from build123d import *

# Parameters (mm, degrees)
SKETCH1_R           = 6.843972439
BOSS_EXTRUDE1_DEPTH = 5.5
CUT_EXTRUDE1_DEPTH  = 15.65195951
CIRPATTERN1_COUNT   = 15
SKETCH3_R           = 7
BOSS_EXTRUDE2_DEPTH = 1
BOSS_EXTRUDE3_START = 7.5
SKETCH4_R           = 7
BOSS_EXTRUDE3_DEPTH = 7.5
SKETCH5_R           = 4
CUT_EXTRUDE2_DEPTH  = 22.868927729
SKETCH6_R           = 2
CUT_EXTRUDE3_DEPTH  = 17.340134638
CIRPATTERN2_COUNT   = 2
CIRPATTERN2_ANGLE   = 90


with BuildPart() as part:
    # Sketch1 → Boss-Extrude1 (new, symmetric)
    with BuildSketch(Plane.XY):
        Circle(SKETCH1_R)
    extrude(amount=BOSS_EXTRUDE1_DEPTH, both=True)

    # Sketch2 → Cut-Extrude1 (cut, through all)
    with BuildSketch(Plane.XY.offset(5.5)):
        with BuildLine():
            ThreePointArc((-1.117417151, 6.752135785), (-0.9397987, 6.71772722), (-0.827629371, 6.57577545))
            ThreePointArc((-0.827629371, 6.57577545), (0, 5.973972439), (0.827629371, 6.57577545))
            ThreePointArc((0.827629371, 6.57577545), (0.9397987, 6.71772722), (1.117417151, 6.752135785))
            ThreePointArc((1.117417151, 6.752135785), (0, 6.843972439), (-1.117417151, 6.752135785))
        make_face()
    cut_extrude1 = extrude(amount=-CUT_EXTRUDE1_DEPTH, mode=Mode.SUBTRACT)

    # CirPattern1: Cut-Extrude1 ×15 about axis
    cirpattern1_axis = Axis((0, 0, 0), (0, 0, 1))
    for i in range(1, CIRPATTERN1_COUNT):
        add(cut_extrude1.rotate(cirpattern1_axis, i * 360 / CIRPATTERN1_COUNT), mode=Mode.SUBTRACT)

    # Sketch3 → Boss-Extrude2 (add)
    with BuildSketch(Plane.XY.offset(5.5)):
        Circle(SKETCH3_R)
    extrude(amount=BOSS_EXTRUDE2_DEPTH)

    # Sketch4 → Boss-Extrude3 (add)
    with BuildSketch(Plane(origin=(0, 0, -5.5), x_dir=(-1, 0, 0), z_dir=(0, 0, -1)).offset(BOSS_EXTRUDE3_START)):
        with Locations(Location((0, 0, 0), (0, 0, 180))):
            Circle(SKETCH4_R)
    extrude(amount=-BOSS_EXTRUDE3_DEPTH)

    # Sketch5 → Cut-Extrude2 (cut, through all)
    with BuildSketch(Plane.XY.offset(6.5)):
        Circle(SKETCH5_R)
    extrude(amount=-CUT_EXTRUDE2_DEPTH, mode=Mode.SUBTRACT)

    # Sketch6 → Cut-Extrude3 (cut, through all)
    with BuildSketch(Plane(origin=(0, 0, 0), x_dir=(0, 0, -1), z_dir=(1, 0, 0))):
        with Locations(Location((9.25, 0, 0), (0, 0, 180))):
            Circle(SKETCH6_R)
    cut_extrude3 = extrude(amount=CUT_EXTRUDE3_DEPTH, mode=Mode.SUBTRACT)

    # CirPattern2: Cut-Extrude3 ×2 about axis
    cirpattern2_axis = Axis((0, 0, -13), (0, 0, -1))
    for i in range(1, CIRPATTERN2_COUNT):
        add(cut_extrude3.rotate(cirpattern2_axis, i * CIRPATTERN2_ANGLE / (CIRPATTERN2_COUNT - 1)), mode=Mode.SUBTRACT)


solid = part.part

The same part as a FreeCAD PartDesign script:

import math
import FreeCAD as App
import Part
import Sketcher
from FreeCAD import Vector
Q = App.Units.Quantity

doc = App.newDocument("Part")
body = doc.addObject("PartDesign::Body", "Body")

sketch1 = doc.addObject("Sketcher::SketchObject", "Sketch")
body.addObject(sketch1)
sketch1.AttachmentSupport = (doc.XY_Plane, [""])
sketch1.MapMode = "FlatFace"
sketch1.addGeometry(Part.Circle(Vector(0, 0, 0), Vector(0, 0, 1), 6.843972), False)
sketch1.addConstraint([
    Sketcher.Constraint("Coincident", 0, 3, -1, 1),
    Sketcher.Constraint("Diameter", 0, Q("13.687945 mm")),
])
pad1 = doc.addObject("PartDesign::Pad", "Pad")
body.addObject(pad1)
pad1.Profile = sketch1
pad1.Length = 11
pad1.Midplane = True

sketch2 = doc.addObject("Sketcher::SketchObject", "Sketch001")
body.addObject(sketch2)
sketch2.AttachmentSupport = (doc.XY_Plane, [""])
sketch2.MapMode = "FlatFace"
sketch2.AttachmentOffset = App.Placement(Vector(0, 0, 5.5), App.Rotation())
sketch2.addGeometry([
    Part.ArcOfCircle(Part.Circle(Vector(-1.074967, 6.495625, 0), Vector(0, 0, 1), 0.26), math.radians(17.955148), math.radians(99.396765)),
    Part.ArcOfCircle(Part.Circle(Vector(0, 6.843972, 0), Vector(0, 0, 1), 0.87), math.radians(-162.044852), math.radians(-17.955148)),
    Part.ArcOfCircle(Part.Circle(Vector(1.074967, 6.495625, 0), Vector(0, 0, 1), 0.26), math.radians(80.603235), math.radians(162.044852)),
    Part.ArcOfCircle(Part.Circle(Vector(0, 0, 0), Vector(0, 0, 1), 6.843972), math.radians(80.603235), math.radians(99.396765)),
], False)
sketch2.addConstraint([
    Sketcher.Constraint("Tangent", 0, 1, 1, 1),
    Sketcher.Constraint("Tangent", 1, 2, 2, 2),
    Sketcher.Constraint("Tangent", 2, 1, 3, 1),
    Sketcher.Constraint("Tangent", 3, 2, 0, 2),
    Sketcher.Constraint("Coincident", 3, 3, -1, 1),
    Sketcher.Constraint("Equal", 0, 2),
    Sketcher.Constraint("PointOnObject", 1, 3, -2),
    Sketcher.Constraint("Radius", 0, Q("0.26 mm")),
    Sketcher.Constraint("Radius", 1, Q("0.87 mm")),
    Sketcher.Constraint("Radius", 3, Q("6.843972 mm")),
    Sketcher.Constraint("DistanceX", 0, 1, -1, 1, Q("0.827629 mm")),
])
pocket1 = doc.addObject("PartDesign::Pocket", "Pocket")
body.addObject(pocket1)
pocket1.Profile = sketch2
pocket1.Type = "ThroughAll"
doc.recompute()

polarpattern = doc.addObject("PartDesign::PolarPattern", "PolarPattern")
body.addObject(polarpattern)
polarpattern.Originals = [pocket1]
polarpattern.Axis = (doc.Z_Axis, [""])
polarpattern.Angle = 360
polarpattern.Occurrences = 15
body.Tip = polarpattern

sketch3 = doc.addObject("Sketcher::SketchObject", "Sketch002")
body.addObject(sketch3)
sketch3.AttachmentSupport = (doc.XY_Plane, [""])
sketch3.MapMode = "FlatFace"
sketch3.AttachmentOffset = App.Placement(Vector(0, 0, 5.5), App.Rotation())
sketch3.addGeometry(Part.Circle(Vector(0, 0, 0), Vector(0, 0, 1), 7), False)
sketch3.addConstraint([
    Sketcher.Constraint("Coincident", 0, 3, -1, 1),
    Sketcher.Constraint("Diameter", 0, Q("14 mm")),
])
pad2 = doc.addObject("PartDesign::Pad", "Pad001")
body.addObject(pad2)
pad2.Profile = sketch3
pad2.Length = 1

sketch4 = doc.addObject("Sketcher::SketchObject", "Sketch003")
body.addObject(sketch4)
sketch4.AttachmentSupport = (doc.XY_Plane, [""])
sketch4.MapMode = "FlatFace"
sketch4.AttachmentOffset = App.Placement(Vector(0, 0, -13), App.Rotation())
sketch4.addGeometry(Part.Circle(Vector(0, 0, 0), Vector(0, 0, 1), 7), False)
sketch4.addConstraint([
    Sketcher.Constraint("Coincident", 0, 3, -1, 1),
    Sketcher.Constraint("Diameter", 0, Q("14 mm")),
])
pad3 = doc.addObject("PartDesign::Pad", "Pad002")
body.addObject(pad3)
pad3.Profile = sketch4
pad3.Length = 7.5

sketch5 = doc.addObject("Sketcher::SketchObject", "Sketch004")
body.addObject(sketch5)
sketch5.AttachmentSupport = (doc.XY_Plane, [""])
sketch5.MapMode = "FlatFace"
sketch5.AttachmentOffset = App.Placement(Vector(0, 0, 6.5), App.Rotation())
sketch5.addGeometry(Part.Circle(Vector(0, 0, 0), Vector(0, 0, 1), 4), False)
sketch5.addConstraint([
    Sketcher.Constraint("Coincident", 0, 3, -1, 1),
    Sketcher.Constraint("Diameter", 0, Q("8 mm")),
])
pocket2 = doc.addObject("PartDesign::Pocket", "Pocket001")
body.addObject(pocket2)
pocket2.Profile = sketch5
pocket2.Type = "ThroughAll"

sketch6 = doc.addObject("Sketcher::SketchObject", "Sketch005")
body.addObject(sketch6)
sketch6.AttachmentSupport = (doc.YZ_Plane, [""])
sketch6.MapMode = "FlatFace"
sketch6.addGeometry(Part.Circle(Vector(0, -9.25, 0), Vector(0, 0, 1), 2), False)
sketch6.addConstraint([
    Sketcher.Constraint("PointOnObject", 0, 3, -2),
    Sketcher.Constraint("Diameter", 0, Q("4 mm")),
    Sketcher.Constraint("DistanceY", 0, 3, -1, 1, Q("9.25 mm")),
])
pocket3 = doc.addObject("PartDesign::Pocket", "Pocket002")
body.addObject(pocket3)
pocket3.Profile = sketch6
pocket3.Type = "ThroughAll"
pocket3.Reversed = True
doc.recompute()

polarpattern2 = doc.addObject("PartDesign::PolarPattern", "PolarPattern001")
body.addObject(polarpattern2)
polarpattern2.Originals = [pocket3]
polarpattern2.Axis = (doc.Z_Axis, [""])
polarpattern2.Angle = 90
polarpattern2.Occurrences = 2
polarpattern2.Reversed = True
body.Tip = polarpattern2

doc.recompute()
